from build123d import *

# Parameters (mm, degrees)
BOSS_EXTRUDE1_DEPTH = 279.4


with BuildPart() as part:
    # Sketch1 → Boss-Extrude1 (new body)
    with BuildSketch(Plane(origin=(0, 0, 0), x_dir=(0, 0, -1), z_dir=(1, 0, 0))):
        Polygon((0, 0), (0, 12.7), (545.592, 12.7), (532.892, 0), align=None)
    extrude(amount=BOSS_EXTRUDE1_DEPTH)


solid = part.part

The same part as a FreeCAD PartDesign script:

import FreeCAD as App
import Part
import Sketcher
from FreeCAD import Vector
Q = App.Units.Quantity


def add_polygon(sketch, points):
    """Adds a closed chain of lines whose ends are joined by coincident constraints."""
    first, n = sketch.GeometryCount, len(points)
    for a, b in zip(points, points[1:] + points[:1]):
        sketch.addGeometry(Part.LineSegment(App.Vector(*a, 0), App.Vector(*b, 0)), False)
    for i in range(n):
        sketch.addConstraint(Sketcher.Constraint("Coincident", first + i, 2, first + (i + 1) % n, 1))

doc = App.newDocument("Part")
body = doc.addObject("PartDesign::Body", "Body")

# Sketch on YZ plane
sketch1 = body.newObject("Sketcher::SketchObject", "Sketch")
sketch1.AttachmentSupport = (doc.getObject("YZ_Plane"), [""])
sketch1.MapMode = "FlatFace"
add_polygon(sketch1, [(13, 0), (0, 0), (0, -533), (13, -546)])  # lines 0-3
sketch1.addConstraint([
    Sketcher.Constraint("Horizontal", 0),
    Sketcher.Constraint("Vertical", 1),
    Sketcher.Constraint("Vertical", 3),
    Sketcher.Constraint("Coincident", 0, 2, -1, 1),
    Sketcher.Constraint("DistanceX", 0, 2, 0, 1, Q("0.5 in")),
    Sketcher.Constraint("Angle", 2, Q("-45 deg")),
    Sketcher.Constraint("DistanceY", 1, 2, 1, 1, Q("20.98 in")),
])
pad1 = body.newObject("PartDesign::Pad", "Pad")
pad1.Profile = sketch1
pad1.Length = Q("11 in")

doc.recompute()
